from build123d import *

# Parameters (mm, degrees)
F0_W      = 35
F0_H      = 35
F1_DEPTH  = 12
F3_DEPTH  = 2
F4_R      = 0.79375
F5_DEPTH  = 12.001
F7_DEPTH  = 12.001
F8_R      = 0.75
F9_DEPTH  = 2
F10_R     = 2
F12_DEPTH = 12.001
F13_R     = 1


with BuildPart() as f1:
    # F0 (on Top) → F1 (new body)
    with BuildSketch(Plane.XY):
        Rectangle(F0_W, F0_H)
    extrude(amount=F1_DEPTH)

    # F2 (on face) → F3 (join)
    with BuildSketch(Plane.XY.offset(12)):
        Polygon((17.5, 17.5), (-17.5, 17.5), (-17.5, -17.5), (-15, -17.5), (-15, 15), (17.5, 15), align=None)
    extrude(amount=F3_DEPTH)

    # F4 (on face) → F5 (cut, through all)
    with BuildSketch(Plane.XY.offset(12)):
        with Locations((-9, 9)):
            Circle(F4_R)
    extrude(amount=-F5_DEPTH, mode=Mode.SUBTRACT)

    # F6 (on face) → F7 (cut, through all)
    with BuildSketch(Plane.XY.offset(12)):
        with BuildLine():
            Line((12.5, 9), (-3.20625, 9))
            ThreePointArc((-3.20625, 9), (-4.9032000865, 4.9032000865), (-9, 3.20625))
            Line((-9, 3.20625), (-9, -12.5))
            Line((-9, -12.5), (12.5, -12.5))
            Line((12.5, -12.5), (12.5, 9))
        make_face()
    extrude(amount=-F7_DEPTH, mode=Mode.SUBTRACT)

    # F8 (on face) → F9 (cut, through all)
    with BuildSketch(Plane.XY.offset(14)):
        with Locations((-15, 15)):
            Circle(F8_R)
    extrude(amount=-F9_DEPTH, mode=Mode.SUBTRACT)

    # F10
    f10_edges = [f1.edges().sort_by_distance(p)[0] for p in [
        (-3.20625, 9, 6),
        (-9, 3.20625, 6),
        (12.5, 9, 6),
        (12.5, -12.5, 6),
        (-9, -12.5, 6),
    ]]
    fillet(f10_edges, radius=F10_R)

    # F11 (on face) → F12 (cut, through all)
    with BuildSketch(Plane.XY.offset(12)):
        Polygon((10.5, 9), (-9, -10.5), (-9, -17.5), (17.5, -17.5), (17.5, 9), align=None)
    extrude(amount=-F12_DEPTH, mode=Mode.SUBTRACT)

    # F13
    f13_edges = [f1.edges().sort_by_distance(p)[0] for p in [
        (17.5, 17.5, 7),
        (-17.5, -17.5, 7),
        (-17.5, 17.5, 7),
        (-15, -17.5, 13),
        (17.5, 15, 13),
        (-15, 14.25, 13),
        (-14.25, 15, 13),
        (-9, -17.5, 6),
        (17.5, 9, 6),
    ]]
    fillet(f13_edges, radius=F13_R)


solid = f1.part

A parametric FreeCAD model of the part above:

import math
import FreeCAD as App
import Part
import Sketcher


def edges_at(feature, points):
    """Names of the edges that pass closest to the given points."""
    edges = feature.Shape.Edges
    near = lambda p: min(range(len(edges)), key=lambda i: edges[i].distToShape(Part.Vertex(*p))[0])
    return sorted({f"Edge{near(p) + 1}" for p in points})

doc = App.newDocument("Part")
params = doc.addObject("Spreadsheet::Sheet", "Params")
for row, (alias, value) in enumerate([
    ("sketch1_width", "35 mm"),
    ("pad1_length", "12 mm"),
    ("sketch2_width", "35 mm"),
    ("sketch2_width2", "2.5 mm"),
    ("pad2_length", "2 mm"),
    ("sketch4_width", "21.5 mm"),
    ("sketch5_diameter", "1.5 mm"),
    ("pocket3_length", "2 mm"),
    ("fillet_radius", "2 mm"),
    ("sketch6_width", "7 mm"),
    ("sketch6_width2", "26.5 mm"),
    ("fillet2_radius", "1 mm"),
], start=1):
    params.set(f"A{row}", alias)
    params.set(f"B{row}", "=" + value)
    params.setAlias(f"B{row}", alias)

body = doc.addObject("PartDesign::Body", "Body")

# Sketch on XY plane
sketch1 = doc.addObject("Sketcher::SketchObject", "Sketch")
body.addObject(sketch1)
sketch1.AttachmentSupport = (doc.XY_Plane, [""])
sketch1.MapMode = "FlatFace"
sketch1.addGeometry([
    Part.LineSegment(App.Vector(-18, 18, 0), App.Vector(-18, -18, 0)),
    Part.LineSegment(App.Vector(-18, -18, 0), App.Vector(18, -18, 0)),
    Part.LineSegment(App.Vector(18, -18, 0), App.Vector(18, 18, 0)),
    Part.LineSegment(App.Vector(18, 18, 0), App.Vector(-18, 18, 0)),
], False)
sketch1.addConstraint([
    Sketcher.Constraint("Coincident", 0, 2, 1, 1),
    Sketcher.Constraint("Coincident", 1, 2, 2, 1),
    Sketcher.Constraint("Coincident", 2, 2, 3, 1),
    Sketcher.Constraint("Coincident", 3, 2, 0, 1),
    Sketcher.Constraint("Vertical", 0),
    Sketcher.Constraint("Horizontal", 1),
    Sketcher.Constraint("Vertical", 2),
    Sketcher.Constraint("Horizontal", 3),
    Sketcher.Constraint("Symmetric", 0, 2, 2, 2, -1, 1),
    Sketcher.Constraint("Equal", 3, 0),
    Sketcher.Constraint("DistanceX", 1, 1, 1, 2, 35.0),
])
sketch1.setExpression("Constraints[10]", "Params.sketch1_width")
pad1 = doc.addObject("PartDesign::Pad", "Pad")
body.addObject(pad1)
pad1.Profile = sketch1
pad1.setExpression("Length", "Params.pad1_length")

# Sketch on XY plane
sketch2 = doc.addObject("Sketcher::SketchObject", "Sketch001")
body.addObject(sketch2)
sketch2.AttachmentSupport = (doc.XY_Plane, [""])
sketch2.MapMode = "FlatFace"
sketch2.AttachmentOffset = App.Placement(App.Vector(0, 0, 12), App.Rotation())
sketch2.addGeometry([
    Part.LineSegment(App.Vector(17.5, 17.5, 0), App.Vector(-17.5, 17.5, 0)),  # 0
    Part.LineSegment(App.Vector(-17.5, 17.5, 0), App.Vector(-17.5, -17.5, 0)),  # 1
    Part.LineSegment(App.Vector(-17.5, -17.5, 0), App.Vector(-15, -17.5, 0)),  # 2
    Part.LineSegment(App.Vector(-15, -17.5, 0), App.Vector(-15, 15, 0)),  # 3
    Part.LineSegment(App.Vector(-15, 15, 0), App.Vector(17.5, 15, 0)),  # 4
    Part.LineSegment(App.Vector(17.5, 15, 0), App.Vector(17.5, 17.5, 0)),  # 5
], False)
sketch2.addConstraint([
    Sketcher.Constraint("Coincident", 0, 2, 1, 1),
    Sketcher.Constraint("Coincident", 1, 2, 2, 1),
    Sketcher.Constraint("Coincident", 2, 2, 3, 1),
    Sketcher.Constraint("Coincident", 3, 2, 4, 1),
    Sketcher.Constraint("Coincident", 4, 2, 5, 1),
    Sketcher.Constraint("Coincident", 5, 2, 0, 1),
    Sketcher.Constraint("Horizontal", 0),
    Sketcher.Constraint("Vertical", 1),
    Sketcher.Constraint("Horizontal", 2),
    Sketcher.Constraint("Vertical", 3),
    Sketcher.Constraint("Horizontal", 4),
    Sketcher.Constraint("Vertical", 5),
    Sketcher.Constraint("Symmetric", 1, 2, 5, 2, -1, 1),
    Sketcher.Constraint("Equal", 0, 1),
    Sketcher.Constraint("Equal", 4, 3),
    Sketcher.Constraint("DistanceX", 0, 2, 0, 1, 35.0),
    Sketcher.Constraint("DistanceX", 2, 1, 2, 2, 2.5),
])
sketch2.setExpression("Constraints[15]", "Params.sketch2_width")
sketch2.setExpression("Constraints[16]", "Params.sketch2_width2")
pad2 = doc.addObject("PartDesign::Pad", "Pad001")
body.addObject(pad2)
pad2.Profile = sketch2
pad2.setExpression("Length", "Params.pad2_length")

# Sketch on XY plane
sketch3 = doc.addObject("Sketcher::SketchObject", "Sketch002")
body.addObject(sketch3)
sketch3.AttachmentSupport = (doc.XY_Plane, [""])
sketch3.MapMode = "FlatFace"
sketch3.AttachmentOffset = App.Placement(App.Vector(0, 0, 12), App.Rotation())
sketch3.addGeometry(Part.Circle(App.Vector(-9, 9, 0), App.Vector(0, 0, 1), 0.8), False)
sketch3.addConstraint([
    Sketcher.Constraint("DistanceX", 0, 3, -1, 1, 9.0),
    Sketcher.Constraint("DistanceY", -1, 1, 0, 3, 9.0),
    Sketcher.Constraint("Diameter", 0, 1.5875),
])
pocket1 = doc.addObject("PartDesign::Pocket", "Pocket")
body.addObject(pocket1)
pocket1.Profile = sketch3
pocket1.Type = "ThroughAll"

# Sketch on XY plane
sketch4 = doc.addObject("Sketcher::SketchObject", "Sketch003")
body.addObject(sketch4)
sketch4.AttachmentSupport = (doc.XY_Plane, [""])
sketch4.MapMode = "FlatFace"
sketch4.AttachmentOffset = App.Placement(App.Vector(0, 0, 12), App.Rotation())
sketch4.addGeometry([
    Part.LineSegment(App.Vector(12, 9, 0), App.Vector(-3, 9, 0)),  # 0
    Part.ArcOfCircle(Part.Circle(App.Vector(-9, 9, 0), App.Vector(0, 0, 1), 6), math.radians(-90), math.radians(0)),  # 1
    Part.LineSegment(App.Vector(-9, 3, 0), App.Vector(-9, -12, 0)),  # 2
    Part.LineSegment(App.Vector(-9, -12, 0), App.Vector(12, -12, 0)),  # 3
    Part.LineSegment(App.Vector(12, -12, 0), App.Vector(12, 9, 0)),  # 4
], False)
sketch4.addConstraint([
    Sketcher.Constraint("Coincident", 0, 2, 1, 2),
    Sketcher.Constraint("Coincident", 1, 1, 2, 1),
    Sketcher.Constraint("Coincident", 2, 2, 3, 1),
    Sketcher.Constraint("Coincident", 3, 2, 4, 1),
    Sketcher.Constraint("Coincident", 4, 2, 0, 1),
    Sketcher.Constraint("Horizontal", 0),
    Sketcher.Constraint("Vertical", 2),
    Sketcher.Constraint("Horizontal", 3),
    Sketcher.Constraint("Vertical", 4),
    Sketcher.Constraint("Horizontal", 1, 3, 0, 2),
    Sketcher.Constraint("Equal", 0, 2),
    Sketcher.Constraint("Equal", 3, 4),
    Sketcher.Constraint("DistanceX", 3, 1, 3, 2, 21.5),
    Sketcher.Constraint("DistanceX", 1, 3, -1, 1, 9.0),
    Sketcher.Constraint("DistanceY", -1, 1, 1, 3, 9.0),
    Sketcher.Constraint("Radius", 1, 5.79375),
])
sketch4.setExpression("Constraints[12]", "Params.sketch4_width")
pocket2 = doc.addObject("PartDesign::Pocket", "Pocket001")
body.addObject(pocket2)
pocket2.Profile = sketch4
pocket2.Type = "ThroughAll"

# Sketch on XY plane
sketch5 = doc.addObject("Sketcher::SketchObject", "Sketch004")
body.addObject(sketch5)
sketch5.AttachmentSupport = (doc.XY_Plane, [""])
sketch5.MapMode = "FlatFace"
sketch5.AttachmentOffset = App.Placement(App.Vector(0, 0, 14), App.Rotation())
sketch5.addGeometry(Part.Circle(App.Vector(-15, 15, 0), App.Vector(0, 0, 1), 0.8), False)
sketch5.addConstraint([
    Sketcher.Constraint("Diameter", 0, 1.5),
    Sketcher.Constraint("DistanceX", 0, 3, -1, 1, 15.0),
    Sketcher.Constraint("DistanceY", -1, 1, 0, 3, 15.0),
])
sketch5.setExpression("Constraints[0]", "Params.sketch5_diameter")
pocket3 = doc.addObject("PartDesign::Pocket", "Pocket002")
body.addObject(pocket3)
pocket3.Profile = sketch5
pocket3.setExpression("Length", "Params.pocket3_length")
doc.recompute()

fillet = doc.addObject("PartDesign::Fillet", "Fillet")
body.addObject(fillet)
fillet.Base = (pocket3, edges_at(pocket3, [
    (-3.206, 9, 6),
    (-9, 3.206, 6),
    (12.5, 9, 6),
    (12.5, -12.5, 6),
    (-9, -12.5, 6),
]))
fillet.setExpression("Radius", "Params.fillet_radius")

# Sketch on XY plane
sketch6 = doc.addObject("Sketcher::SketchObject", "Sketch005")
body.addObject(sketch6)
sketch6.AttachmentSupport = (doc.XY_Plane, [""])
sketch6.MapMode = "FlatFace"
sketch6.AttachmentOffset = App.Placement(App.Vector(0, 0, 12), App.Rotation())
sketch6.addGeometry([
    Part.LineSegment(App.Vector(10, 9, 0), App.Vector(-9, -10, 0)),  # 0
    Part.LineSegment(App.Vector(-9, -10, 0), App.Vector(-9, -18, 0)),  # 1
    Part.LineSegment(App.Vector(-9, -18, 0), App.Vector(18, -18, 0)),  # 2
    Part.LineSegment(App.Vector(18, -18, 0), App.Vector(18, 9, 0)),  # 3
    Part.LineSegment(App.Vector(18, 9, 0), App.Vector(10, 9, 0)),  # 4
], False)
sketch6.addConstraint([
    Sketcher.Constraint("Coincident", 0, 2, 1, 1),
    Sketcher.Constraint("Coincident", 1, 2, 2, 1),
    Sketcher.Constraint("Coincident", 2, 2, 3, 1),
    Sketcher.Constraint("Coincident", 3, 2, 4, 1),
    Sketcher.Constraint("Coincident", 4, 2, 0, 1),
    Sketcher.Constraint("Vertical", 1),
    Sketcher.Constraint("Horizontal", 2),
    Sketcher.Constraint("Vertical", 3),
    Sketcher.Constraint("Horizontal", 4),
    Sketcher.Constraint("Equal", 4, 1),
    Sketcher.Constraint("Equal", 2, 3),
    Sketcher.Constraint("DistanceX", 4, 2, 4, 1, 7.0),
    Sketcher.Constraint("DistanceX", 2, 1, 2, 2, 26.5),
    Sketcher.Constraint("DistanceX", 0, 2, -1, 1, 9.0),
    Sketcher.Constraint("DistanceY", -1, 1, 3, 2, 9.0),
])
sketch6.setExpression("Constraints[11]", "Params.sketch6_width")
sketch6.setExpression("Constraints[12]", "Params.sketch6_width2")
pocket4 = doc.addObject("PartDesign::Pocket", "Pocket003")
body.addObject(pocket4)
pocket4.Profile = sketch6
pocket4.Type = "ThroughAll"
doc.recompute()

fillet2 = doc.addObject("PartDesign::Fillet", "Fillet001")
body.addObject(fillet2)
fillet2.Base = (pocket4, edges_at(pocket4, [
    (17.5, 17.5, 7),
    (-17.5, -17.5, 7),
    (-17.5, 17.5, 7),
    (-15, -17.5, 13),
    (17.5, 15, 13),
    (-15, 14.25, 13),
    (-14.25, 15, 13),
    (-9, -17.5, 6),
    (17.5, 9, 6),
]))
fillet2.setExpression("Radius", "Params.fillet2_radius")

doc.recompute()
